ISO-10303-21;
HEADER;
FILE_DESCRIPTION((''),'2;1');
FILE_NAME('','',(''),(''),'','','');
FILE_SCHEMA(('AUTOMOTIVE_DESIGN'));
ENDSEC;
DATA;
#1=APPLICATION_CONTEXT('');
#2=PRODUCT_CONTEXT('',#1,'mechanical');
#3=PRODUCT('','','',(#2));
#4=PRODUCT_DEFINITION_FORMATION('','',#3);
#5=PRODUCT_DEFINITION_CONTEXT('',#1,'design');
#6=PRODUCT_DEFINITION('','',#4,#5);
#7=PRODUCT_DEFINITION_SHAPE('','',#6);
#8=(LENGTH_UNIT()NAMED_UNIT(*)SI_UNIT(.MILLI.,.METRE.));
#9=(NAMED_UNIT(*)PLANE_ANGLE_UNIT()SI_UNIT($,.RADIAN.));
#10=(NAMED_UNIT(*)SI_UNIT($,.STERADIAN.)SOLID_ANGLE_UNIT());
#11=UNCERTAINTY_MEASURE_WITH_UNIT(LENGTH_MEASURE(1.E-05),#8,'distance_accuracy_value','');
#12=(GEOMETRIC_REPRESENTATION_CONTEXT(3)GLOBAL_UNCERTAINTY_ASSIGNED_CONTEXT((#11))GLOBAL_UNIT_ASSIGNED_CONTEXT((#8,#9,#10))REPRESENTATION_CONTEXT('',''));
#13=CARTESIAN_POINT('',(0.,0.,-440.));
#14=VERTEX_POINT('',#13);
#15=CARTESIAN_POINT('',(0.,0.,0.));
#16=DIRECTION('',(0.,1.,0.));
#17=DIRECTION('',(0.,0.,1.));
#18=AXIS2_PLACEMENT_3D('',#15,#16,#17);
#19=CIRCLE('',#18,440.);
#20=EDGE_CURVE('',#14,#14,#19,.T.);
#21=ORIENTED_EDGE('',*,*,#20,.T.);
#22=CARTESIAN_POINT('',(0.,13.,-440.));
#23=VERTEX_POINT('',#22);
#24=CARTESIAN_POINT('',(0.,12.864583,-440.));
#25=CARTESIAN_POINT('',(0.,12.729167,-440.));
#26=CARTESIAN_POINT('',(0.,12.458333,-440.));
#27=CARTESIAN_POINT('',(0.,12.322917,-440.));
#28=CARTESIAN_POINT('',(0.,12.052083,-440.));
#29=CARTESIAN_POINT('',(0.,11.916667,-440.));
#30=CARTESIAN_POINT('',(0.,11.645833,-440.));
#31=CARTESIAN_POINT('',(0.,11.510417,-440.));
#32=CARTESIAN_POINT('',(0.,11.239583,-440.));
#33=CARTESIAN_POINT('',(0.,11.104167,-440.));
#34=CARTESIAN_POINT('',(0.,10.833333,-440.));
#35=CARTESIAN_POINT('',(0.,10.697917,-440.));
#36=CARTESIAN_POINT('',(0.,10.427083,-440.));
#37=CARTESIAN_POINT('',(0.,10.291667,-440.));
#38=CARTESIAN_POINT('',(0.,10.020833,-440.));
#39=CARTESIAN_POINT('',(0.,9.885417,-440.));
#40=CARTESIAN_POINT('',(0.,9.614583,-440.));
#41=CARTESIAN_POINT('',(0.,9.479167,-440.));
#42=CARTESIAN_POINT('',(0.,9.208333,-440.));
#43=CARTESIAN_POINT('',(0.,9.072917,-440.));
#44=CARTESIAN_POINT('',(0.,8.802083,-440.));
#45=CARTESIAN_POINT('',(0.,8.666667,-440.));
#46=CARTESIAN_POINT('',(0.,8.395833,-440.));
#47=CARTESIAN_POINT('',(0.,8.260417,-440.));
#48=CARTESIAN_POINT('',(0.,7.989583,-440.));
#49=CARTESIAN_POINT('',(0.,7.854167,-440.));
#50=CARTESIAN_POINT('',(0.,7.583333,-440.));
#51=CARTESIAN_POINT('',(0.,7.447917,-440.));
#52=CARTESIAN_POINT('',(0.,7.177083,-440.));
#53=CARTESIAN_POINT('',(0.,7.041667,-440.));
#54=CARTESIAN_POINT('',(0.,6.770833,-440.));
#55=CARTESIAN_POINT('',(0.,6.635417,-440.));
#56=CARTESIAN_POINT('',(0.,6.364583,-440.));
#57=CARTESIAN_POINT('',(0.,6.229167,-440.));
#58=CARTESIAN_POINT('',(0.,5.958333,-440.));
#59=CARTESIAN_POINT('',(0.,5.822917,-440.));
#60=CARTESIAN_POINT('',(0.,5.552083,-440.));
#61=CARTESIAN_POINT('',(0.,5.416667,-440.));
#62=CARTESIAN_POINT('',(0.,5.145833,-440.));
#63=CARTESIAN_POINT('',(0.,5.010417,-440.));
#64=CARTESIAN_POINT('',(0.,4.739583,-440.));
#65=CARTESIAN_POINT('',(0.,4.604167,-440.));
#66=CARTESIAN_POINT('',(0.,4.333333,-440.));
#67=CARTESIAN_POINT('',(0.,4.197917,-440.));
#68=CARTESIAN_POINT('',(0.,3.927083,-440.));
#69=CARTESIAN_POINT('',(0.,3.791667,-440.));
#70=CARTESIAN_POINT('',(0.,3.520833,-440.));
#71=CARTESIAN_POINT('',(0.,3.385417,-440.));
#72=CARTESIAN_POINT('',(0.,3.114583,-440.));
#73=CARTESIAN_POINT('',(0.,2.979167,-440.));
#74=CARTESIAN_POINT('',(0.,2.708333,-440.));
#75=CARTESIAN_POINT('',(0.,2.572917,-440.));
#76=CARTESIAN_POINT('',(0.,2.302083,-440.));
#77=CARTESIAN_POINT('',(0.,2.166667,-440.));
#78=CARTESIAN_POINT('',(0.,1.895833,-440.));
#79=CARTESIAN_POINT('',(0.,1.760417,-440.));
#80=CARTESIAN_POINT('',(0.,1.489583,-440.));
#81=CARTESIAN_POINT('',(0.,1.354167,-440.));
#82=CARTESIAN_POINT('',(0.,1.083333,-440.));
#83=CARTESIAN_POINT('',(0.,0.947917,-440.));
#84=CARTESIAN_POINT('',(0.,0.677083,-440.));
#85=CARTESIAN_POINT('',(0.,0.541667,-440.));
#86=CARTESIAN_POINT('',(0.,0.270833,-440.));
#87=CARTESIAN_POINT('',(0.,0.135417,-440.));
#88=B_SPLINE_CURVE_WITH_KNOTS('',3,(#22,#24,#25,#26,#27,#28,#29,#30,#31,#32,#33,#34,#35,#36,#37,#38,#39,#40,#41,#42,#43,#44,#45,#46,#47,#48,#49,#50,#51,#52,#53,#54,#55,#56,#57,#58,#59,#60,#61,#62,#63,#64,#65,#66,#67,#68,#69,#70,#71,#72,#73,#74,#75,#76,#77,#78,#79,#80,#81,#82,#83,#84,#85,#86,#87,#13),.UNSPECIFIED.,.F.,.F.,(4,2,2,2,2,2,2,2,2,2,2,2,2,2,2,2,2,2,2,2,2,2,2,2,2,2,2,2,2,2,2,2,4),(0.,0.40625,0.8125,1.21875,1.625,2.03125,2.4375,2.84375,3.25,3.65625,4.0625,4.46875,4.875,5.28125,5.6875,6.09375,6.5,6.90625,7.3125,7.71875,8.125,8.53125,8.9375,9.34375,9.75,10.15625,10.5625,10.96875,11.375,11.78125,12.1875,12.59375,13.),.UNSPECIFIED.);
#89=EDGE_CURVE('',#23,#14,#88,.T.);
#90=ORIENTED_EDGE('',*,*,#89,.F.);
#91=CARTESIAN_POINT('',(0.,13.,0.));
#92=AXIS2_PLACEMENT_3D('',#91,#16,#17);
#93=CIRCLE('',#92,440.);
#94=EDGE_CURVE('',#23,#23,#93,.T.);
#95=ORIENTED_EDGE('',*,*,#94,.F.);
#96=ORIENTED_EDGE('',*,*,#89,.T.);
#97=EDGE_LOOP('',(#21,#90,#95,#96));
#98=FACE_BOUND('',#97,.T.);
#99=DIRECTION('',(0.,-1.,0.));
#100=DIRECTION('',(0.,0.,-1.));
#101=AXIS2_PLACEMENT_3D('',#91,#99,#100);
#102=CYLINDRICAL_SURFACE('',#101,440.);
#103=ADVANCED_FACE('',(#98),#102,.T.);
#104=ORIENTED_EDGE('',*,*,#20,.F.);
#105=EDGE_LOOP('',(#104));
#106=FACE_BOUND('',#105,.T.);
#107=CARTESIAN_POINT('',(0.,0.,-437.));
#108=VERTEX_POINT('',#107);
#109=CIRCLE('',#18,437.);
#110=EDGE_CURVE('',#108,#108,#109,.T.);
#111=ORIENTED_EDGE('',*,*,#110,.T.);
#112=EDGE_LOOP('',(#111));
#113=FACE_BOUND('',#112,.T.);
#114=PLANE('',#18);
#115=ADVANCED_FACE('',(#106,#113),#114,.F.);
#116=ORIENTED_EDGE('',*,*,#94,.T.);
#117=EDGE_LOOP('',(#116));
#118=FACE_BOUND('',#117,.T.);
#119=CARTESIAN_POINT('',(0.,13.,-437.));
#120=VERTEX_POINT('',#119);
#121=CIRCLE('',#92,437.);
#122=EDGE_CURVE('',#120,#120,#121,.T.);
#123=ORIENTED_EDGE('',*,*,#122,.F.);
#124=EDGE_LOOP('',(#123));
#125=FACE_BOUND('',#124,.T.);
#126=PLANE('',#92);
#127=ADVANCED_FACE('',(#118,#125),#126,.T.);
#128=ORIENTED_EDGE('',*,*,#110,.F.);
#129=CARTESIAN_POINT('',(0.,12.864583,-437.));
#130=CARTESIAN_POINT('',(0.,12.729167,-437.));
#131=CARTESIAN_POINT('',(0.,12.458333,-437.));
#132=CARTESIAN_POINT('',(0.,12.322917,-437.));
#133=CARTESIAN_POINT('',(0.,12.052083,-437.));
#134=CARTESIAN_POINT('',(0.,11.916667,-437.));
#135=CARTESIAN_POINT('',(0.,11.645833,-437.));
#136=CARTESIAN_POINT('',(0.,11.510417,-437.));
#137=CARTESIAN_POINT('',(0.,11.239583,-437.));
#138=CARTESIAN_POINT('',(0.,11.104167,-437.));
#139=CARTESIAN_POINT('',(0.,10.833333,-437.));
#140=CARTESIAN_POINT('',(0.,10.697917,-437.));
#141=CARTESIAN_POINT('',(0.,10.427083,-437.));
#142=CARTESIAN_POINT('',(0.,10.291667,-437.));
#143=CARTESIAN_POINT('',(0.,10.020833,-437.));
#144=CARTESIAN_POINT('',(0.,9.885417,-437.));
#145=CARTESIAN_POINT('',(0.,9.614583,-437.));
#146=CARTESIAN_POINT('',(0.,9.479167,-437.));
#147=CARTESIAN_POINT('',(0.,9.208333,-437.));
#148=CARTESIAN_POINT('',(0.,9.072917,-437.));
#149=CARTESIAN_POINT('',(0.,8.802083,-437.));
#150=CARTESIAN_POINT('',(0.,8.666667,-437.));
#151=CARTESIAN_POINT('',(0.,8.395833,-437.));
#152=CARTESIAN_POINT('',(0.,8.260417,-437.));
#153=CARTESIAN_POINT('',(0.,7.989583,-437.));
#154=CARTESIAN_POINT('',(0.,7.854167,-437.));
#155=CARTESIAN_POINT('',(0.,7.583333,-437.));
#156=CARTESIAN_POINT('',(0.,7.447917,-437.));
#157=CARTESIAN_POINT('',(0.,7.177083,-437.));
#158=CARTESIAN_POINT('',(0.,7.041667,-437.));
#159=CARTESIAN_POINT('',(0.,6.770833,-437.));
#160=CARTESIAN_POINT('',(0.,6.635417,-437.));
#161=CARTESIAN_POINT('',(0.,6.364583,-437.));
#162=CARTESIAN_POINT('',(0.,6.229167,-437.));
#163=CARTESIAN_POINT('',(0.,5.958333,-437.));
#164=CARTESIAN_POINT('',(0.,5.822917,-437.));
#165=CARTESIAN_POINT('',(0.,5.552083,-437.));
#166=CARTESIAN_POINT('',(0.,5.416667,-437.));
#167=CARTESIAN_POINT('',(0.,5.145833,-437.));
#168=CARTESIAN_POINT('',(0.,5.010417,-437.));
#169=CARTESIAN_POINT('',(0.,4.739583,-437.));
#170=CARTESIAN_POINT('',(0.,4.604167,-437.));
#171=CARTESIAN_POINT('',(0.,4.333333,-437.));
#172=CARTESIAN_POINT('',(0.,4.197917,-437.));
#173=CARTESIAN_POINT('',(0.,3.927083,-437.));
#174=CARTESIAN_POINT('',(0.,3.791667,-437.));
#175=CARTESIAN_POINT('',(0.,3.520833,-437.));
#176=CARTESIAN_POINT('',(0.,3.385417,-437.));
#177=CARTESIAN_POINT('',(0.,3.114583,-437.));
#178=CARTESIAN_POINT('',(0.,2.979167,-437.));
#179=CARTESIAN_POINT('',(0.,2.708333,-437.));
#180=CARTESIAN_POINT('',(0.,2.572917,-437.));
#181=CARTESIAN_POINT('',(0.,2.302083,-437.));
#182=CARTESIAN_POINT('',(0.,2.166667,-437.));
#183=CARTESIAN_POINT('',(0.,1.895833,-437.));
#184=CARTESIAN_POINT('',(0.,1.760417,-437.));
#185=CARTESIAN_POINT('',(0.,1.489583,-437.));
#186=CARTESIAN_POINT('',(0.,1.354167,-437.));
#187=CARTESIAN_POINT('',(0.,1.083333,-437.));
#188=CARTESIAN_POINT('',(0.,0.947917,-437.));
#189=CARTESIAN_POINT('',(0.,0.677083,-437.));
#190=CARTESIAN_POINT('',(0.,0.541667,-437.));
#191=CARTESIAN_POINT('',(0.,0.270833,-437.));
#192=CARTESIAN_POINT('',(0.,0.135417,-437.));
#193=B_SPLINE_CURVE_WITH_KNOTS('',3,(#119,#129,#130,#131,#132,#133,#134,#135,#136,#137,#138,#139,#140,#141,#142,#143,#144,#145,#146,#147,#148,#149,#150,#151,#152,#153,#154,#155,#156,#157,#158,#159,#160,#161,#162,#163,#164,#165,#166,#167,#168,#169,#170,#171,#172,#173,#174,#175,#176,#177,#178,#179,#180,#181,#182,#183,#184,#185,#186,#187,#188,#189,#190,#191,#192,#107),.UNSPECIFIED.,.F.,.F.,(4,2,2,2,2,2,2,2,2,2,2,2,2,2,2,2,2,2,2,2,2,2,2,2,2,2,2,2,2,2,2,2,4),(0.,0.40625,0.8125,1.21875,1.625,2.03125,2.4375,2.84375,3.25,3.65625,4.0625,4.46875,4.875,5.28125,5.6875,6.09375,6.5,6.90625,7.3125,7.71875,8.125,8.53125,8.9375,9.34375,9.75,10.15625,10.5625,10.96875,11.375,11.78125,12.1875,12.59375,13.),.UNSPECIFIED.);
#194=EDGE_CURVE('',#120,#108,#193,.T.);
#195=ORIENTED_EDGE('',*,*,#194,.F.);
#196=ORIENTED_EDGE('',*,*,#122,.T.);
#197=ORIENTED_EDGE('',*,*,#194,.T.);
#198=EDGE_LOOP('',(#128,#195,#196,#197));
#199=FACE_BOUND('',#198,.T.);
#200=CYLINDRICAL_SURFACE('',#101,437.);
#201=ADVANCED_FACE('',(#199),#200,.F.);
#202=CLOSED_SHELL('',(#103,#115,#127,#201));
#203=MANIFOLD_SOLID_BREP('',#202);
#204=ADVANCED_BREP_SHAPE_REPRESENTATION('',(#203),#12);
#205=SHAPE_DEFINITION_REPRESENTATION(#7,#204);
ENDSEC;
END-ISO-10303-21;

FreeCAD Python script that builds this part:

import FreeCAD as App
import Part
import Sketcher

V = App.Vector
Q = App.Units.Quantity

doc = App.newDocument("Part")
body = doc.addObject("PartDesign::Body", "Body")

sketch1 = doc.addObject("Sketcher::SketchObject", "Sketch")
body.addObject(sketch1)
sketch1.AttachmentSupport = (doc.XZ_Plane, [""])
sketch1.MapMode = "FlatFace"
sketch1.addGeometry(Part.Circle(V(0, 0, 0), V(0, 0, 1), 440), False)
sketch1.addGeometry(Part.Circle(V(0, 0, 0), V(0, 0, 1), 437), False)
sketch1.addConstraint(Sketcher.Constraint("Coincident", 0, 3, -1, 1))
sketch1.addConstraint(Sketcher.Constraint("Coincident", 1, 3, -1, 1))
sketch1.addConstraint(Sketcher.Constraint("Diameter", 0, Q("880 mm")))
sketch1.addConstraint(Sketcher.Constraint("Diameter", 1, Q("874 mm")))
pad1 = doc.addObject("PartDesign::Pad", "Pad")
body.addObject(pad1)
pad1.Profile = sketch1
pad1.Length = 13
pad1.Reversed = True

doc.recompute()
